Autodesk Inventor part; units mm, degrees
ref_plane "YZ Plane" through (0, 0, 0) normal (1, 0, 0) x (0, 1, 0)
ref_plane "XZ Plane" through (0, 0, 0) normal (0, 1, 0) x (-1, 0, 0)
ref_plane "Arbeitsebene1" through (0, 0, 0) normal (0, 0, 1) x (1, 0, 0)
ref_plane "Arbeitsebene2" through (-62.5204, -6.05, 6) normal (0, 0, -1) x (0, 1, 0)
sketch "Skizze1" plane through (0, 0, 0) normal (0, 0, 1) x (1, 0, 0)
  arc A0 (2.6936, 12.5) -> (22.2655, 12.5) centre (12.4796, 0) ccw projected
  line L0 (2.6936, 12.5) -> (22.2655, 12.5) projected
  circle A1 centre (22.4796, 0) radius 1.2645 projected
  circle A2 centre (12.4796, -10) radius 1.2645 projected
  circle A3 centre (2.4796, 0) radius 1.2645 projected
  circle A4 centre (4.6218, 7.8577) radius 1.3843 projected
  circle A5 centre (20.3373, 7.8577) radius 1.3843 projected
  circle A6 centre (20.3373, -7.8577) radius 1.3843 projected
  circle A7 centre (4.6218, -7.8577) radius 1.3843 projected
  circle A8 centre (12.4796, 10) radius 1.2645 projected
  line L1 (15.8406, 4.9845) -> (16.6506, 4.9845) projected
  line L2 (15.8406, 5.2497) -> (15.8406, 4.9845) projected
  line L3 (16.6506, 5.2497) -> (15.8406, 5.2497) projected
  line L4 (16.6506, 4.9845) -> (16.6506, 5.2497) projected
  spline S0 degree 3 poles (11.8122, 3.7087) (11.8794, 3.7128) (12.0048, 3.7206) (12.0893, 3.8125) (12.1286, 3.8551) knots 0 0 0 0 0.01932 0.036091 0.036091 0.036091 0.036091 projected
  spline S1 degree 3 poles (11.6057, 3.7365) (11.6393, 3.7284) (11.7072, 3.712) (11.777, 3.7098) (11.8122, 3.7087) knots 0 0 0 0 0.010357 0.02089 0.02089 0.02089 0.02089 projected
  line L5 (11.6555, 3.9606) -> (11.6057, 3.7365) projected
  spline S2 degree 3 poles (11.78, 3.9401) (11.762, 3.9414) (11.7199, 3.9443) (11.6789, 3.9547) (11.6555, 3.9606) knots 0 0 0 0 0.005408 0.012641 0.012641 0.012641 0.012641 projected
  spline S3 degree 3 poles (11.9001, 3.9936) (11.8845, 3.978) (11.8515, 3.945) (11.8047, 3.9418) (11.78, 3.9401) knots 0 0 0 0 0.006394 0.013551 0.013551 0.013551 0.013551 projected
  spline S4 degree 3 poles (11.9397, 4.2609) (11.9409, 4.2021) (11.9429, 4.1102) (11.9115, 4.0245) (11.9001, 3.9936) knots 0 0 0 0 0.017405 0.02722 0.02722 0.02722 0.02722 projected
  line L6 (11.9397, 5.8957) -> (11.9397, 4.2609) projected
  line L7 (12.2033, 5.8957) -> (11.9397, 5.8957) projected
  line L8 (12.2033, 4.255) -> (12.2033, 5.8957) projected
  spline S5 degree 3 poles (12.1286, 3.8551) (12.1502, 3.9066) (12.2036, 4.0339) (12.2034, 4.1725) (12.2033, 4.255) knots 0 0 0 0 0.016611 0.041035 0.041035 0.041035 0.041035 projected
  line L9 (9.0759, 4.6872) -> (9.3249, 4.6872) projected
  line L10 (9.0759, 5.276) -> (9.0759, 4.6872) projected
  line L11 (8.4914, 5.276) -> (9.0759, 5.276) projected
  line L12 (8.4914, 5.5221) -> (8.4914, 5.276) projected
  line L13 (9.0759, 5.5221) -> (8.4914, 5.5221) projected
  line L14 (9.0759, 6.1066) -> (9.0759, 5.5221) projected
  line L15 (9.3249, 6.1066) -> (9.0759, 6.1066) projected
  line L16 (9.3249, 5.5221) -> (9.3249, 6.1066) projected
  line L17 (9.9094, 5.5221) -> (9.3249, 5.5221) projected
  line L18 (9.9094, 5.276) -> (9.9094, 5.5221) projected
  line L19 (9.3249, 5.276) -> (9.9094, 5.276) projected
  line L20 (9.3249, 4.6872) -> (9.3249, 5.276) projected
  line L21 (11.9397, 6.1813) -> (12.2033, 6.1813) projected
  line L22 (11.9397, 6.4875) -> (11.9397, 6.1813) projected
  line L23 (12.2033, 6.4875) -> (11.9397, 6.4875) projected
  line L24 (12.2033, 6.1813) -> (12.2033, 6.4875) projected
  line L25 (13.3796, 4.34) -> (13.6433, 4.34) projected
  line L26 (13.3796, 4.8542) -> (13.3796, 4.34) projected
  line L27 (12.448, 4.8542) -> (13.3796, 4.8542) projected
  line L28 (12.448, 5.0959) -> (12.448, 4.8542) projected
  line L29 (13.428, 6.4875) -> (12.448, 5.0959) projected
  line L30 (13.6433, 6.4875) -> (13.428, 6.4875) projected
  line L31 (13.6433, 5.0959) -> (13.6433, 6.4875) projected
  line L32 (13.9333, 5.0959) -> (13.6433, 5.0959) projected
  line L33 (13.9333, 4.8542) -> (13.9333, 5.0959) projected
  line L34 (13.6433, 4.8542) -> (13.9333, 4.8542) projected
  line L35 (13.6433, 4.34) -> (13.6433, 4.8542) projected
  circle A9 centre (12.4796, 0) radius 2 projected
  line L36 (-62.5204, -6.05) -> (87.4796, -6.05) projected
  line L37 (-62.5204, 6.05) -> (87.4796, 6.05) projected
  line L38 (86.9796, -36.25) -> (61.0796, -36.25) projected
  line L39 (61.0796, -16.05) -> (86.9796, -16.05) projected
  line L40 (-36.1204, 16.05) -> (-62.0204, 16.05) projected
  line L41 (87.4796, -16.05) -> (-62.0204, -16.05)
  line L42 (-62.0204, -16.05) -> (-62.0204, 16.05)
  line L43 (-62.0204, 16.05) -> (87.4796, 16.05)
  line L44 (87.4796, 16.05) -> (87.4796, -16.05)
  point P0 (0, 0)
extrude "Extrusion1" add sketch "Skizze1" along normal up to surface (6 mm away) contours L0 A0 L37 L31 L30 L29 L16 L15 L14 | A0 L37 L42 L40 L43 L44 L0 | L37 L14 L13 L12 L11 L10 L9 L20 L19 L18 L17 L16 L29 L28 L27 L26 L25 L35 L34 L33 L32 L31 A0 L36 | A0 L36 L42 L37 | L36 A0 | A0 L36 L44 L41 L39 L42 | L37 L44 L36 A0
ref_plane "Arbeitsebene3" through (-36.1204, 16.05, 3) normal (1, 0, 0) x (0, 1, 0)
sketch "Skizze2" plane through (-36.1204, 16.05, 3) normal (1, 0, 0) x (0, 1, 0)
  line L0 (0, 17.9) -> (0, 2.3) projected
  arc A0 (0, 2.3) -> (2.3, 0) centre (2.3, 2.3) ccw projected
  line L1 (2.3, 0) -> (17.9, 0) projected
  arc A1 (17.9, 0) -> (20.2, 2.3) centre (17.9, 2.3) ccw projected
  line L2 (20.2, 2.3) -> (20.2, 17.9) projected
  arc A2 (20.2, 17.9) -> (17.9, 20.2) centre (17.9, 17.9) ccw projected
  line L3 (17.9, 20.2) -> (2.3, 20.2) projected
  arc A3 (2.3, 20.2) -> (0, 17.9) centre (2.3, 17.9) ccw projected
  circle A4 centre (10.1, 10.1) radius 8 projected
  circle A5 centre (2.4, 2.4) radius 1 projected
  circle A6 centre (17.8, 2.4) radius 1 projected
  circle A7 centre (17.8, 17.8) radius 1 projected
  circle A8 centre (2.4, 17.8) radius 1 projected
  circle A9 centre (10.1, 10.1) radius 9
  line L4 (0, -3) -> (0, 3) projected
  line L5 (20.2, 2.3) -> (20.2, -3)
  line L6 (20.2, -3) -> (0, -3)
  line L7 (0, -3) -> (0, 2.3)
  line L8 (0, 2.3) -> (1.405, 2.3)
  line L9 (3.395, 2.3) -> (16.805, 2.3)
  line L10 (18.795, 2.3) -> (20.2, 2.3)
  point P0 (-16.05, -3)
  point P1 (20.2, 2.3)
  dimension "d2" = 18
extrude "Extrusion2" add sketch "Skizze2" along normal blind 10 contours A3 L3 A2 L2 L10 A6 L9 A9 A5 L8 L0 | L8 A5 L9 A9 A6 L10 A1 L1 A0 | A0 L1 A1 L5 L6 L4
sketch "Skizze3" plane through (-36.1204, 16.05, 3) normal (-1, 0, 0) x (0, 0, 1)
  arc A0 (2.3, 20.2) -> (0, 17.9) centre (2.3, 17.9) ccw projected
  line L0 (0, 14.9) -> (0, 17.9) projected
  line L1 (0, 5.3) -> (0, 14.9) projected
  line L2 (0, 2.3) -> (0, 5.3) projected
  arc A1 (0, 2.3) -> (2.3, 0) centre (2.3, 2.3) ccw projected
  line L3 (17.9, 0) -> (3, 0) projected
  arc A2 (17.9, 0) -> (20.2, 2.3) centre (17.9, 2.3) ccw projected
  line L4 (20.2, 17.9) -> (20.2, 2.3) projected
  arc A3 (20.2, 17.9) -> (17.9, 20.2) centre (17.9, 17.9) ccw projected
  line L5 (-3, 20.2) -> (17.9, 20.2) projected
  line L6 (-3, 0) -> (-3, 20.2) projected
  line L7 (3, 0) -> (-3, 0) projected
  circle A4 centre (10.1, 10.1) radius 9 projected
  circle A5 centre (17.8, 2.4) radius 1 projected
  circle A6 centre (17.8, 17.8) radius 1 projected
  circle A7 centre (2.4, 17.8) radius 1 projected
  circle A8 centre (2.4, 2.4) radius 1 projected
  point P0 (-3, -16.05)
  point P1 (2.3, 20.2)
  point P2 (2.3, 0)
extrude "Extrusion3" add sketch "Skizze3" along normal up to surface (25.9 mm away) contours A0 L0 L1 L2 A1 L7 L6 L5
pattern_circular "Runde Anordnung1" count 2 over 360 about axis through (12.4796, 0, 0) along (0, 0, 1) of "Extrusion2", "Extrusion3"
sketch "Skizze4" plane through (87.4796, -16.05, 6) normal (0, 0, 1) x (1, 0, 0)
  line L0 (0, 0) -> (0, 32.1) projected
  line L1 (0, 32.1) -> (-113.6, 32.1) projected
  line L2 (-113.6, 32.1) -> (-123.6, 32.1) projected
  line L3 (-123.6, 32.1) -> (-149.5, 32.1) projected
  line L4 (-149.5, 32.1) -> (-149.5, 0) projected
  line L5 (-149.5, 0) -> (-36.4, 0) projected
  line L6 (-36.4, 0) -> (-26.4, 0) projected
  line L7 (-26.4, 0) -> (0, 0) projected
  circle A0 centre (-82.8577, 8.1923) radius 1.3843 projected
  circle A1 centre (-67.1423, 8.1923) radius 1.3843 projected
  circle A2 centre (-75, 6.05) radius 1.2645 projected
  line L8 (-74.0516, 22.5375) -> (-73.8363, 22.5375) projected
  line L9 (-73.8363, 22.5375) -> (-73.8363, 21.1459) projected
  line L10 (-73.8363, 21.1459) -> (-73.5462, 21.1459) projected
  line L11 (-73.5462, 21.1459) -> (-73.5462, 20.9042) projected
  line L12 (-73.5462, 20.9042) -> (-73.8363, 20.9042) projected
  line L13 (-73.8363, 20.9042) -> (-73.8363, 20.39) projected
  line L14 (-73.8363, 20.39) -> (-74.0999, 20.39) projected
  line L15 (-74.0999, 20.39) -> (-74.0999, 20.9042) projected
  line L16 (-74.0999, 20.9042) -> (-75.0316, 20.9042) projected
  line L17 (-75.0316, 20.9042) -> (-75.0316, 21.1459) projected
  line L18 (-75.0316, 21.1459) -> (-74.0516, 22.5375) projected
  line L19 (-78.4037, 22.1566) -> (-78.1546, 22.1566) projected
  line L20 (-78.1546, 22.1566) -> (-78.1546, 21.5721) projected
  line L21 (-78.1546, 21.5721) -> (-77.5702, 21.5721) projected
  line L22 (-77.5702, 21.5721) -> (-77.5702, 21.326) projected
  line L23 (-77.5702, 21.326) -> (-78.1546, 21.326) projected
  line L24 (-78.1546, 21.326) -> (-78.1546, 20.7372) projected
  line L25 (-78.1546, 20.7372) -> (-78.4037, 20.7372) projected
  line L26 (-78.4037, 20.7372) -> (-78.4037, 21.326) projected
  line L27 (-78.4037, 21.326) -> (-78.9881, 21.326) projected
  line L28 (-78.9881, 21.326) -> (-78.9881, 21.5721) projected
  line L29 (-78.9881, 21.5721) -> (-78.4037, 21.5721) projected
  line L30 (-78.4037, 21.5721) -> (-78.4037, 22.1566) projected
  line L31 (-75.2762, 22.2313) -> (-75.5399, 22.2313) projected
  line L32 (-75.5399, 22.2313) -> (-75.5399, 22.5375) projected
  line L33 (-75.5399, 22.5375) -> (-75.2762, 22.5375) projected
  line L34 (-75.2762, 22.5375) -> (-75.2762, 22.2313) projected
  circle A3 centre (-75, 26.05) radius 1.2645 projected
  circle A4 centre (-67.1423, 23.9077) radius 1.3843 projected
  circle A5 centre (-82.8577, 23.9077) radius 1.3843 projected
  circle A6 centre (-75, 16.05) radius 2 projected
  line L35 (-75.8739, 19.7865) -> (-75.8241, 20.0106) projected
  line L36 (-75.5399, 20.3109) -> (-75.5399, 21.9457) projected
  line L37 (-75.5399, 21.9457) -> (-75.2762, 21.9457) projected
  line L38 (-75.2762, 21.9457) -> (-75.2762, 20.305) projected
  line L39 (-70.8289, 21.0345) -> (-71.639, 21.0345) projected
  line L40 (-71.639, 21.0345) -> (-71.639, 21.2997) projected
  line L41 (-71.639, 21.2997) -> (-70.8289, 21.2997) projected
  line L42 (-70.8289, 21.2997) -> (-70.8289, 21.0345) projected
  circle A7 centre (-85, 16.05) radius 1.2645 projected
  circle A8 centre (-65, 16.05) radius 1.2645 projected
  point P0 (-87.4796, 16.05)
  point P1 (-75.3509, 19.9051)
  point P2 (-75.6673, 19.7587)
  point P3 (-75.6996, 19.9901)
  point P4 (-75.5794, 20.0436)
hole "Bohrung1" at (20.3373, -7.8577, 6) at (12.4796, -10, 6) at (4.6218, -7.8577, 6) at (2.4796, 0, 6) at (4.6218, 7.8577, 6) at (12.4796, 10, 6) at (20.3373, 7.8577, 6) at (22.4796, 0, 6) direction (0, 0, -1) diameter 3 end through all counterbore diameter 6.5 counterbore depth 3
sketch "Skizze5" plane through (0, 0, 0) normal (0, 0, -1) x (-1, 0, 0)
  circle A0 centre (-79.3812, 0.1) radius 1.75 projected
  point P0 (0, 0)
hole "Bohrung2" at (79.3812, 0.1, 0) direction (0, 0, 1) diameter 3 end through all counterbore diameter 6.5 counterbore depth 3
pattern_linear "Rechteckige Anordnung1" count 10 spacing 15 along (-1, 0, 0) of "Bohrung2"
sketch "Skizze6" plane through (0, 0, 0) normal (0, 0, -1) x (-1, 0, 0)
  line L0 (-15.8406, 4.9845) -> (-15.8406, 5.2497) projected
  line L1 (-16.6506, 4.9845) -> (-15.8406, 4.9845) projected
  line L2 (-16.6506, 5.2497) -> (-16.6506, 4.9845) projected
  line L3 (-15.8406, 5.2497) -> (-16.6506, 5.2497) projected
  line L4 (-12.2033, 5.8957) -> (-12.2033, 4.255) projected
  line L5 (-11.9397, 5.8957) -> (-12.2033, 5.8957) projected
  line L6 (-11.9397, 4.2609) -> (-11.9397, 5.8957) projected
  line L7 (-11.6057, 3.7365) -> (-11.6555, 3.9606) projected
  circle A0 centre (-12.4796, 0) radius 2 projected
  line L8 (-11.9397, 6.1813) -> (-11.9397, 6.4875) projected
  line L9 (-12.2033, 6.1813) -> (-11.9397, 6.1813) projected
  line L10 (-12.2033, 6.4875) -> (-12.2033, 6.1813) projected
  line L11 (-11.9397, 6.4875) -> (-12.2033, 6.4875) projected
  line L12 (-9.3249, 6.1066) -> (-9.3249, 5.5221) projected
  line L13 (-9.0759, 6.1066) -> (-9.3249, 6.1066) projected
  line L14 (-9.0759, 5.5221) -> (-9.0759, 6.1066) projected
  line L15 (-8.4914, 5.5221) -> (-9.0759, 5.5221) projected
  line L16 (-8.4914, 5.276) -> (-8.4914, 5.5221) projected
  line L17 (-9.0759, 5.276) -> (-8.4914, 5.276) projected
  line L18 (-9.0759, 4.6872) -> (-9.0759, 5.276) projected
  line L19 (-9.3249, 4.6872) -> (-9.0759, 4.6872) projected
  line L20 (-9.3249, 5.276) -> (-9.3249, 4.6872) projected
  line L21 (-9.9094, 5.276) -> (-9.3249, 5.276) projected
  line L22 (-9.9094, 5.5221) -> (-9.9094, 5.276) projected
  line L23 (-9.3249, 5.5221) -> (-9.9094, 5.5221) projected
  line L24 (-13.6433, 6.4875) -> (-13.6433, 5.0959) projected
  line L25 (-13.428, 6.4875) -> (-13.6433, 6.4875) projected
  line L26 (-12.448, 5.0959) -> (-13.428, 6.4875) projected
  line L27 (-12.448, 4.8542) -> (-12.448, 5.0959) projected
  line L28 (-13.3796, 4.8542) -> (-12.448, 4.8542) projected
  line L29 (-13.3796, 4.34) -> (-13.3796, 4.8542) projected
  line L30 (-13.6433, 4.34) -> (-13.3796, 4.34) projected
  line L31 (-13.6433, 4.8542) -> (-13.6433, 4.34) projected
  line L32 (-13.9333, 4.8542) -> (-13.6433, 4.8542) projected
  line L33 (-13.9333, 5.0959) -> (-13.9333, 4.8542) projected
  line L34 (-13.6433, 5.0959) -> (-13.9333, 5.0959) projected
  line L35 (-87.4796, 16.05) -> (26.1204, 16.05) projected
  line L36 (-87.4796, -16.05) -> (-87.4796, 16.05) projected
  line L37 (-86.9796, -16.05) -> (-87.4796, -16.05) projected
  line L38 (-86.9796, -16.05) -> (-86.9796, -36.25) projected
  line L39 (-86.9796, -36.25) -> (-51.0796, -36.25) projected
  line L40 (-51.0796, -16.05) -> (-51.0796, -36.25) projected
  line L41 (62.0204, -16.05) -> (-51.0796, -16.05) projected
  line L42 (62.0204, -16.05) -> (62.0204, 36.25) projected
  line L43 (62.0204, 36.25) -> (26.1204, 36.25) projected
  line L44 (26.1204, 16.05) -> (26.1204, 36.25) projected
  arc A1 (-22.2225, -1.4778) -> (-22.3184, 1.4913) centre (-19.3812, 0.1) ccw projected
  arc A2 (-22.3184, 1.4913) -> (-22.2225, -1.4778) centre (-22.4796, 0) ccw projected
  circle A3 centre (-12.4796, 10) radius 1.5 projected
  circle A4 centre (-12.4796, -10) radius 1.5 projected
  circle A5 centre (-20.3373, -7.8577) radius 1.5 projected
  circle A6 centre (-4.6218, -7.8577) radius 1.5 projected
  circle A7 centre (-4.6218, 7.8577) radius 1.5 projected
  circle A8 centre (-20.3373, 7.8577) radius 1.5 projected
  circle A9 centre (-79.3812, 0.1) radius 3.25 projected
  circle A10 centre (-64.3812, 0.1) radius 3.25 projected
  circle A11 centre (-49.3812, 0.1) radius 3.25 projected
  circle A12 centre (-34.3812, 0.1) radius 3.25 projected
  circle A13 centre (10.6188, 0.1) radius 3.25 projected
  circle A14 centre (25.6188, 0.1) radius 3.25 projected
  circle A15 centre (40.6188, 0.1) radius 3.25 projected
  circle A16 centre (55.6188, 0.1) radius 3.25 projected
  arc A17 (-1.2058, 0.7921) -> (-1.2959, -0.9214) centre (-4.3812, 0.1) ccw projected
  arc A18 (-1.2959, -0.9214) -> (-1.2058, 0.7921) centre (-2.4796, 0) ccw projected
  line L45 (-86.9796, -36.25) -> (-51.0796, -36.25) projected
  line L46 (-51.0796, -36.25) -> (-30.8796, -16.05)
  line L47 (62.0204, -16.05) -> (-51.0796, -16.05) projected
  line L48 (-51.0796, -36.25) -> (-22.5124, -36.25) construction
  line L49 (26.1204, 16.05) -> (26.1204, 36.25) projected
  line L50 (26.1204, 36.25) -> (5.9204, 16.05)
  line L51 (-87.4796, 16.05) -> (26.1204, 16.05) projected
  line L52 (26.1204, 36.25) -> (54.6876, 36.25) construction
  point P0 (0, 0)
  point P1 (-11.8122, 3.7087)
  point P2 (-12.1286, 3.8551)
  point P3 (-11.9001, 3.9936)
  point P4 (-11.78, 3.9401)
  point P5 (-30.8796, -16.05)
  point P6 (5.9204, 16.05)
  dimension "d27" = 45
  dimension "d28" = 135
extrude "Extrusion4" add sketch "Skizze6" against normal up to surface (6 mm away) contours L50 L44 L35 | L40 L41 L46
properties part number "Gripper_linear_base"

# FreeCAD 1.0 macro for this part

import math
import FreeCAD as App
import Part
import Sketcher

V = App.Vector


def add_polygon(sketch, points):
    """Adds a closed chain of lines whose ends are joined by coincident constraints."""
    first, n = sketch.GeometryCount, len(points)
    for a, b in zip(points, points[1:] + points[:1]):
        sketch.addGeometry(Part.LineSegment(App.Vector(*a, 0), App.Vector(*b, 0)), False)
    for i in range(n):
        sketch.addConstraint(Sketcher.Constraint("Coincident", first + i, 2, first + (i + 1) % n, 1))

doc = App.newDocument("Part")
body = doc.addObject("PartDesign::Body", "Body")

sketch1 = body.newObject("Sketcher::SketchObject", "Sketch")
sketch1.AttachmentSupport = (doc.getObject("XY_Plane"), [""])
sketch1.MapMode = "FlatFace"
add_polygon(sketch1, [(-62.0204, 16.05), (-62.0204, -16.05), (87.4796, -16.05), (87.4796, 16.05)])
add_polygon(sketch1, [(13.6433, 6.4875), (13.6433, 5.0959), (13.9333, 5.0959), (13.9333, 4.8542), (13.6433, 4.8542), (13.6433, 4.34), (13.3796, 4.34), (13.3796, 4.8542), (12.448, 4.8542), (12.448, 5.0959), (13.428, 6.4875)])
add_polygon(sketch1, [(9.3249, 6.1066), (9.3249, 5.5221), (9.9094, 5.5221), (9.9094, 5.276), (9.3249, 5.276), (9.3249, 4.6872), (9.0759, 4.6872), (9.0759, 5.276), (8.4914, 5.276), (8.4914, 5.5221), (9.0759, 5.5221), (9.0759, 6.1066)])
add_polygon(sketch1, [(12.2033, 6.1813), (11.9397, 6.1813), (11.9397, 6.4875), (12.2033, 6.4875)])
sketch1.addGeometry(Part.Circle(V(4.6218, 7.8577, 0), V(0, 0, 1), 1.3843), False)
sketch1.addGeometry(Part.Circle(V(12.4796, 10, 0), V(0, 0, 1), 1.2645), False)
sketch1.addGeometry(Part.Circle(V(20.3373, 7.8577, 0), V(0, 0, 1), 1.3843), False)
add_polygon(sketch1, [(16.6506, 5.2497), (16.6506, 4.9845), (15.8406, 4.9845), (15.8406, 5.2497)])
sketch1.addGeometry(Part.Circle(V(2.4796, 0, 0), V(0, 0, 1), 1.2645), False)
sketch1.addGeometry(Part.Circle(V(12.4796, 0, 0), V(0, 0, 1), 2), False)
sketch1.addGeometry(Part.BSplineCurve([V(11.8122, 3.7087, 0), V(11.8794, 3.7128, 0), V(12.0048, 3.7206, 0), V(12.0893, 3.8125, 0), V(12.1286, 3.8551, 0)], [4, 1, 4], [0, 0.01932, 0.036091], False, 3, [1, 1, 1, 1, 1], False), False)
sketch1.addGeometry(Part.BSplineCurve([V(11.6057, 3.7365, 0), V(11.6393, 3.7284, 0), V(11.7072, 3.712, 0), V(11.777, 3.7098, 0), V(11.8122, 3.7087, 0)], [4, 1, 4], [0, 0.010357, 0.02089], False, 3, [1, 1, 1, 1, 1], False), False)
sketch1.addGeometry(Part.LineSegment(V(11.6057, 3.7365, 0), V(11.6555, 3.9606, 0)), False)
sketch1.addGeometry(Part.BSplineCurve([V(11.78, 3.9401, 0), V(11.762, 3.9414, 0), V(11.7199, 3.9443, 0), V(11.6789, 3.9547, 0), V(11.6555, 3.9606, 0)], [4, 1, 4], [0, 0.005408, 0.012641], False, 3, [1, 1, 1, 1, 1], False), False)
sketch1.addGeometry(Part.BSplineCurve([V(11.9001, 3.9936, 0), V(11.8845, 3.978, 0), V(11.8515, 3.945, 0), V(11.8047, 3.9418, 0), V(11.78, 3.9401, 0)], [4, 1, 4], [0, 0.006394, 0.013551], False, 3, [1, 1, 1, 1, 1], False), False)
sketch1.addGeometry(Part.BSplineCurve([V(11.9397, 4.2609, 0), V(11.9409, 4.2021, 0), V(11.9429, 4.1102, 0), V(11.9115, 4.0245, 0), V(11.9001, 3.9936, 0)], [4, 1, 4], [0, 0.017405, 0.02722], False, 3, [1, 1, 1, 1, 1], False), False)
sketch1.addGeometry(Part.LineSegment(V(11.9397, 4.2609, 0), V(11.9397, 5.8957, 0)), False)
sketch1.addGeometry(Part.LineSegment(V(11.9397, 5.8957, 0), V(12.2033, 5.8957, 0)), False)
sketch1.addGeometry(Part.LineSegment(V(12.2033, 5.8957, 0), V(12.2033, 4.255, 0)), False)
sketch1.addGeometry(Part.BSplineCurve([V(12.1286, 3.8551, 0), V(12.1502, 3.9066, 0), V(12.2036, 4.0339, 0), V(12.2034, 4.1725, 0), V(12.2033, 4.255, 0)], [4, 1, 4], [0, 0.016611, 0.041035], False, 3, [1, 1, 1, 1, 1], False), False)
sketch1.addGeometry(Part.Circle(V(22.4796, 0, 0), V(0, 0, 1), 1.2645), False)
sketch1.addGeometry(Part.Circle(V(20.3373, -7.8577, 0), V(0, 0, 1), 1.3843), False)
sketch1.addGeometry(Part.Circle(V(12.4796, -10, 0), V(0, 0, 1), 1.2645), False)
sketch1.addGeometry(Part.Circle(V(4.6218, -7.8577, 0), V(0, 0, 1), 1.3843), False)
sketch1.addConstraint(Sketcher.Constraint("Block", 40))
sketch1.addConstraint(Sketcher.Constraint("Block", 41))
sketch1.addConstraint(Sketcher.Constraint("Block", 43))
sketch1.addConstraint(Sketcher.Constraint("Block", 44))
sketch1.addConstraint(Sketcher.Constraint("Block", 45))
sketch1.addConstraint(Sketcher.Constraint("Block", 49))
sketch1.addConstraint(Sketcher.Constraint("Coincident", 41, 1, 42, 1))
sketch1.addConstraint(Sketcher.Constraint("Coincident", 42, 2, 43, 2))
sketch1.addConstraint(Sketcher.Constraint("Coincident", 45, 1, 46, 1))
sketch1.addConstraint(Sketcher.Constraint("Coincident", 46, 2, 47, 1))
sketch1.addConstraint(Sketcher.Constraint("Coincident", 47, 2, 48, 1))
sketch1.addConstraint(Sketcher.Constraint("Coincident", 48, 2, 49, 2))
sketch1.addConstraint(Sketcher.Constraint("Vertical", 0))
sketch1.addConstraint(Sketcher.Constraint("Horizontal", 1))
sketch1.addConstraint(Sketcher.Constraint("Vertical", 2))
sketch1.addConstraint(Sketcher.Constraint("Horizontal", 3))
sketch1.addConstraint(Sketcher.Constraint("Vertical", 4))
sketch1.addConstraint(Sketcher.Constraint("Horizontal", 5))
sketch1.addConstraint(Sketcher.Constraint("Vertical", 6))
sketch1.addConstraint(Sketcher.Constraint("Horizontal", 7))
sketch1.addConstraint(Sketcher.Constraint("Vertical", 8))
sketch1.addConstraint(Sketcher.Constraint("Horizontal", 9))
sketch1.addConstraint(Sketcher.Constraint("Vertical", 10))
sketch1.addConstraint(Sketcher.Constraint("Horizontal", 11))
sketch1.addConstraint(Sketcher.Constraint("Vertical", 12))
sketch1.addConstraint(Sketcher.Constraint("Horizontal", 14))
sketch1.addConstraint(Sketcher.Constraint("Vertical", 15))
sketch1.addConstraint(Sketcher.Constraint("Horizontal", 16))
sketch1.addConstraint(Sketcher.Constraint("Vertical", 17))
sketch1.addConstraint(Sketcher.Constraint("Horizontal", 18))
sketch1.addConstraint(Sketcher.Constraint("Vertical", 19))
sketch1.addConstraint(Sketcher.Constraint("Horizontal", 20))
sketch1.addConstraint(Sketcher.Constraint("Vertical", 21))
sketch1.addConstraint(Sketcher.Constraint("Horizontal", 22))
sketch1.addConstraint(Sketcher.Constraint("Vertical", 23))
sketch1.addConstraint(Sketcher.Constraint("Horizontal", 24))
sketch1.addConstraint(Sketcher.Constraint("Vertical", 25))
sketch1.addConstraint(Sketcher.Constraint("Horizontal", 26))
sketch1.addConstraint(Sketcher.Constraint("Horizontal", 27))
sketch1.addConstraint(Sketcher.Constraint("Vertical", 28))
sketch1.addConstraint(Sketcher.Constraint("Horizontal", 29))
sketch1.addConstraint(Sketcher.Constraint("Vertical", 30))
sketch1.addConstraint(Sketcher.Constraint("Vertical", 34))
sketch1.addConstraint(Sketcher.Constraint("Horizontal", 35))
sketch1.addConstraint(Sketcher.Constraint("Vertical", 36))
sketch1.addConstraint(Sketcher.Constraint("Horizontal", 37))
sketch1.addConstraint(Sketcher.Constraint("Vertical", 46))
sketch1.addConstraint(Sketcher.Constraint("Horizontal", 47))
sketch1.addConstraint(Sketcher.Constraint("Vertical", 48))
sketch1.addConstraint(Sketcher.Constraint("Equal", 31, 33))
sketch1.addConstraint(Sketcher.Constraint("Equal", 32, 38))
sketch1.addConstraint(Sketcher.Constraint("Equal", 38, 50))
sketch1.addConstraint(Sketcher.Constraint("Equal", 33, 51))
sketch1.addConstraint(Sketcher.Constraint("Equal", 50, 52))
sketch1.addConstraint(Sketcher.Constraint("Equal", 51, 53))
sketch1.addConstraint(Sketcher.Constraint("Symmetric", 33, 3, 51, 3, -1))
sketch1.addConstraint(Sketcher.Constraint("Symmetric", 32, 3, 52, 3, -1))
sketch1.addConstraint(Sketcher.Constraint("Symmetric", 31, 3, 53, 3, -1))
sketch1.addConstraint(Sketcher.Constraint("PointOnObject", 38, 3, -1))
sketch1.addConstraint(Sketcher.Constraint("PointOnObject", 39, 3, -1))
sketch1.addConstraint(Sketcher.Constraint("PointOnObject", 50, 3, -1))
sketch1.addConstraint(Sketcher.Constraint("Horizontal", 31, 3, 33, 3))
sketch1.addConstraint(Sketcher.Constraint("Horizontal", 7, 2, 10, 2))
sketch1.addConstraint(Sketcher.Constraint("Horizontal", 5, 2, 12, 2))
sketch1.addConstraint(Sketcher.Constraint("Horizontal", 18, 2, 21, 2))
sketch1.addConstraint(Sketcher.Constraint("Horizontal", 16, 2, 23, 2))
sketch1.addConstraint(Sketcher.Constraint("Horizontal", 14, 2, 28, 2))
sketch1.addConstraint(Sketcher.Constraint("Vertical", 32, 3, 39, 3))
sketch1.addConstraint(Sketcher.Constraint("Vertical", 4, 2, 7, 2))
sketch1.addConstraint(Sketcher.Constraint("Vertical", 15, 2, 18, 2))
sketch1.addConstraint(Sketcher.Constraint("Vertical", 21, 2, 24, 2))
sketch1.addConstraint(Sketcher.Constraint("Vertical", 28, 2, 46, 2))
sketch1.addConstraint(Sketcher.Constraint("Vertical", 30, 2, 47, 2))
sketch1.addConstraint(Sketcher.Constraint("Equal", 18, 22))
sketch1.addConstraint(Sketcher.Constraint("Equal", 9, 27))
sketch1.addConstraint(Sketcher.Constraint("Equal", 24, 15))
sketch1.addConstraint(Sketcher.Constraint("Diameter", 39, 4.0))
sketch1.addConstraint(Sketcher.Constraint("Diameter", 32, 2.529))
sketch1.addConstraint(Sketcher.Constraint("DistanceX", 1, 1, 1, 2, 149.5))
sketch1.addConstraint(Sketcher.Constraint("DistanceY", 0, 2, 0, 1, 32.1))
sketch1.addConstraint(Sketcher.Constraint("DistanceY", -1, 1, 32, 3, 10.0))
sketch1.addConstraint(Sketcher.Constraint("DistanceX", 38, 3, 32, 3, 10.0))
sketch1.addConstraint(Sketcher.Constraint("DistanceX", 39, 3, 50, 3, 10.0))
sketch1.addConstraint(Sketcher.Constraint("DistanceX", 50, 3, 1, 2, 65.0))
sketch1.addConstraint(Sketcher.Constraint("Diameter", 31, 2.7686))
sketch1.addConstraint(Sketcher.Constraint("DistanceX", 5, 1, 5, 2, 0.29))
sketch1.addConstraint(Sketcher.Constraint("DistanceX", 35, 2, 35, 1, 0.81))
sketch1.addConstraint(Sketcher.Constraint("DistanceX", 20, 2, 20, 1, 0.249))
sketch1.addConstraint(Sketcher.Constraint("DistanceY", 17, 2, 17, 1, 0.246))
sketch1.addConstraint(Sketcher.Constraint("DistanceY", 0, 2, -1, 1, 16.05))
sketch1.addConstraint(Sketcher.Constraint("DistanceY", -1, 1, 8, 2, 4.34))
sketch1.addConstraint(Sketcher.Constraint("DistanceX", 12, 2, 13, 2, 0.98))
sketch1.addConstraint(Sketcher.Constraint("DistanceY", 12, 2, 17, 2, 0.18))
sketch1.addConstraint(Sketcher.Constraint("DistanceX", 27, 2, 10, 2, 1.44))
sketch1.addConstraint(Sketcher.Constraint("Distance", 13, 1.702))
sketch1.addConstraint(Sketcher.Constraint("DistanceX", 11, 2, 11, 1, 0.9316))
sketch1.addConstraint(Sketcher.Constraint("DistanceX", 16, 1, 16, 2, 0.5845))
sketch1.addConstraint(Sketcher.Constraint("DistanceY", 6, 2, 6, 1, 0.2417))
sketch1.addConstraint(Sketcher.Constraint("DistanceY", 8, 2, 8, 1, 0.5142))
sketch1.addConstraint(Sketcher.Constraint("DistanceY", 19, 2, 19, 1, 0.5888))
sketch1.addConstraint(Sketcher.Constraint("DistanceY", 28, 1, 28, 2, 0.3062))
sketch1.addConstraint(Sketcher.Constraint("DistanceY", 34, 2, 34, 1, 0.2652))
sketch1.addConstraint(Sketcher.Constraint("DistanceY", 46, 1, 46, 2, 1.6348))
sketch1.addConstraint(Sketcher.Constraint("DistanceX", -1, 1, 15, 2, 9.325))
sketch1.addConstraint(Sketcher.Constraint("DistanceX", 4, 2, 33, 3, 6.694))
sketch1.addConstraint(Sketcher.Constraint("DistanceX", -1, 1, 31, 3, 4.6218))
sketch1.addConstraint(Sketcher.Constraint("DistanceY", -1, 1, 31, 3, 7.8577))
sketch1.addConstraint(Sketcher.Constraint("DistanceX", -1, 1, 32, 3, 12.4796))
sketch1.addConstraint(Sketcher.Constraint("DistanceX", -1, 1, 34, 2, 16.6506))
sketch1.addConstraint(Sketcher.Constraint("DistanceY", -1, 1, 34, 2, 4.9845))
pad1 = body.newObject("PartDesign::Pad", "Pad")
pad1.Profile = sketch1
pad1.Length = 6

sketch2 = body.newObject("Sketcher::SketchObject", "Sketch001")
sketch2.AttachmentSupport = (doc.getObject("YZ_Plane"), [""])
sketch2.MapMode = "FlatFace"
sketch2.AttachmentOffset = App.Placement(V(0, 0, -36.1204), App.Rotation())
sketch2.addGeometry(Part.ArcOfCircle(Part.Circle(V(18.4, 20.9, 0), V(0, 0, 1), 2.3), math.radians(90), math.radians(180)), False)
sketch2.addGeometry(Part.LineSegment(V(16.1, 20.9, 0), V(16.1, 0, 0)), False)
sketch2.addGeometry(Part.LineSegment(V(16.1, 0, 0), V(36.2, 0, 0)), False)
sketch2.addGeometry(Part.LineSegment(V(36.2, 0, 0), V(36.2, 20.9, 0)), False)
sketch2.addGeometry(Part.ArcOfCircle(Part.Circle(V(34, 20.9, 0), V(0, 0, 1), 2.3), math.radians(0), math.radians(90)), False)
sketch2.addGeometry(Part.LineSegment(V(34, 23.2, 0), V(18.4, 23.2, 0)), False)
sketch2.addGeometry(Part.Circle(V(33.9, 5.4, 0), V(0, 0, 1), 1), False)
sketch2.addGeometry(Part.Circle(V(26.1, 13.1, 0), V(0, 0, 1), 9), False)
sketch2.addGeometry(Part.Circle(V(18.4, 5.4, 0), V(0, 0, 1), 1), False)
sketch2.addGeometry(Part.Circle(V(18.4, 20.8, 0), V(0, 0, 1), 1), False)
sketch2.addGeometry(Part.Circle(V(33.9, 20.8, 0), V(0, 0, 1), 1), False)
sketch2.addConstraint(Sketcher.Constraint("Tangent", 0, 2, 1, 1))
sketch2.addConstraint(Sketcher.Constraint("Coincident", 1, 2, 2, 1))
sketch2.addConstraint(Sketcher.Constraint("Coincident", 2, 2, 3, 1))
sketch2.addConstraint(Sketcher.Constraint("Tangent", 3, 2, 4, 1))
sketch2.addConstraint(Sketcher.Constraint("Tangent", 4, 2, 5, 1))
sketch2.addConstraint(Sketcher.Constraint("Tangent", 5, 2, 0, 1))
sketch2.addConstraint(Sketcher.Constraint("Vertical", 1))
sketch2.addConstraint(Sketcher.Constraint("Horizontal", 2))
sketch2.addConstraint(Sketcher.Constraint("Vertical", 3))
sketch2.addConstraint(Sketcher.Constraint("Horizontal", 5))
sketch2.addConstraint(Sketcher.Constraint("Equal", 0, 4))
sketch2.addConstraint(Sketcher.Constraint("Equal", 6, 8))
sketch2.addConstraint(Sketcher.Constraint("Equal", 8, 9))
sketch2.addConstraint(Sketcher.Constraint("Equal", 9, 10))
sketch2.addConstraint(Sketcher.Constraint("PointOnObject", 1, 2, -1))
sketch2.addConstraint(Sketcher.Constraint("Horizontal", 6, 3, 8, 3))
sketch2.addConstraint(Sketcher.Constraint("Horizontal", 9, 3, 10, 3))
sketch2.addConstraint(Sketcher.Constraint("Vertical", 8, 3, 9, 3))
sketch2.addConstraint(Sketcher.Constraint("Vertical", 6, 3, 10, 3))
sketch2.addConstraint(Sketcher.Constraint("Diameter", 7, 18.0))
sketch2.addConstraint(Sketcher.Constraint("Diameter", 6, 2.0))
sketch2.addConstraint(Sketcher.Constraint("Radius", 0, 2.3))
sketch2.addConstraint(Sketcher.Constraint("DistanceX", 2, 1, 2, 2, 20.2))
sketch2.addConstraint(Sketcher.Constraint("DistanceY", 1, 2, 1, 1, 20.9))
sketch2.addConstraint(Sketcher.Constraint("DistanceY", -1, 1, 6, 3, 5.4))
sketch2.addConstraint(Sketcher.Constraint("DistanceY", -1, 1, 7, 3, 13.1))
sketch2.addConstraint(Sketcher.Constraint("DistanceY", -1, 1, 9, 3, 20.8))
sketch2.addConstraint(Sketcher.Constraint("DistanceX", 6, 3, 4, 3, 0.1))
sketch2.addConstraint(Sketcher.Constraint("DistanceX", 7, 3, 6, 3, 7.7))
sketch2.addConstraint(Sketcher.Constraint("DistanceX", 8, 3, 7, 3, 7.7))
sketch2.addConstraint(Sketcher.Constraint("DistanceX", -1, 1, 0, 3, 18.35))
pad2 = body.newObject("PartDesign::Pad", "Pad001")
pad2.Profile = sketch2
pad2.Length = 10

sketch3 = body.newObject("Sketcher::SketchObject", "Sketch002")
sketch3.AttachmentSupport = (doc.getObject("YZ_Plane"), [""])
sketch3.MapMode = "FlatFace"
sketch3.AttachmentOffset = App.Placement(V(0, 0, -36.1204), App.Rotation())
sketch3.addGeometry(Part.ArcOfCircle(Part.Circle(V(34, 5.3, 0), V(0, 0, 1), 2.3), math.radians(-90), math.radians(0)), False)
sketch3.addGeometry(Part.LineSegment(V(36.2, 5.3, 0), V(36.2, 0, 0)), False)
sketch3.addGeometry(Part.LineSegment(V(36.2, 0, 0), V(16.1, 0, 0)), False)
sketch3.addGeometry(Part.LineSegment(V(16.1, 0, 0), V(16.1, 5.3, 0)), False)
sketch3.addGeometry(Part.ArcOfCircle(Part.Circle(V(18.4, 5.3, 0), V(0, 0, 1), 2.3), math.radians(180), math.radians(270)), False)
sketch3.addGeometry(Part.LineSegment(V(18.4, 3, 0), V(34, 3, 0)), False)
sketch3.addConstraint(Sketcher.Constraint("Tangent", 0, 2, 1, 1))
sketch3.addConstraint(Sketcher.Constraint("Coincident", 1, 2, 2, 1))
sketch3.addConstraint(Sketcher.Constraint("Coincident", 2, 2, 3, 1))
sketch3.addConstraint(Sketcher.Constraint("Tangent", 3, 2, 4, 1))
sketch3.addConstraint(Sketcher.Constraint("Tangent", 4, 2, 5, 1))
sketch3.addConstraint(Sketcher.Constraint("Tangent", 5, 2, 0, 1))
sketch3.addConstraint(Sketcher.Constraint("Vertical", 1))
sketch3.addConstraint(Sketcher.Constraint("Horizontal", 2))
sketch3.addConstraint(Sketcher.Constraint("Vertical", 3))
sketch3.addConstraint(Sketcher.Constraint("Horizontal", 5))
sketch3.addConstraint(Sketcher.Constraint("Equal", 0, 4))
sketch3.addConstraint(Sketcher.Constraint("PointOnObject", 1, 2, -1))
sketch3.addConstraint(Sketcher.Constraint("Radius", 0, 2.3))
sketch3.addConstraint(Sketcher.Constraint("DistanceX", 2, 2, 2, 1, 20.2))
sketch3.addConstraint(Sketcher.Constraint("DistanceY", 1, 2, 1, 1, 5.3))
sketch3.addConstraint(Sketcher.Constraint("DistanceX", -1, 1, 0, 3, 33.95))
pad3 = body.newObject("PartDesign::Pad", "Pad002")
pad3.Profile = sketch3
pad3.Length = 25.9
pad3.Reversed = True
doc.recompute()

datumline = body.newObject("PartDesign::Line", "DatumLine")
datumline.Placement = App.Placement(V(12.4796, 0, 0), App.Rotation(V(0, 0, 1), V(0, 0, 1)))
polarpattern = body.newObject("PartDesign::PolarPattern", "PolarPattern")
polarpattern.Originals = [pad2, pad3]
polarpattern.Axis = (datumline, [""])
polarpattern.Angle = 360
polarpattern.Occurrences = 2
body.Tip = polarpattern

sketch4 = body.newObject("Sketcher::SketchObject", "Sketch003")
sketch4.AttachmentSupport = (doc.getObject("XY_Plane"), [""])
sketch4.MapMode = "FlatFace"
sketch4.AttachmentOffset = App.Placement(V(0, 0, 6), App.Rotation())
sketch4.addGeometry(Part.Circle(V(20.3, -7.9, 0), V(0, 0, 1), 1.5), False)
sketch4.addGeometry(Part.Circle(V(12.5, -10, 0), V(0, 0, 1), 1.5), False)
sketch4.addGeometry(Part.Circle(V(4.6, -7.9, 0), V(0, 0, 1), 1.5), False)
sketch4.addGeometry(Part.Circle(V(2.5, 0, 0), V(0, 0, 1), 1.5), False)
sketch4.addGeometry(Part.Circle(V(4.6, 7.9, 0), V(0, 0, 1), 1.5), False)
sketch4.addGeometry(Part.Circle(V(12.5, 10, 0), V(0, 0, 1), 1.5), False)
sketch4.addGeometry(Part.Circle(V(20.3, 7.9, 0), V(0, 0, 1), 1.5), False)
sketch4.addGeometry(Part.Circle(V(22.5, 0, 0), V(0, 0, 1), 1.5), False)
sketch4.addConstraint(Sketcher.Constraint("Equal", 0, 1))
sketch4.addConstraint(Sketcher.Constraint("Equal", 1, 2))
sketch4.addConstraint(Sketcher.Constraint("Equal", 2, 3))
sketch4.addConstraint(Sketcher.Constraint("Equal", 3, 4))
sketch4.addConstraint(Sketcher.Constraint("Equal", 4, 5))
sketch4.addConstraint(Sketcher.Constraint("Equal", 5, 6))
sketch4.addConstraint(Sketcher.Constraint("Equal", 6, 7))
sketch4.addConstraint(Sketcher.Constraint("Symmetric", 2, 3, 4, 3, -1))
sketch4.addConstraint(Sketcher.Constraint("Symmetric", 1, 3, 5, 3, -1))
sketch4.addConstraint(Sketcher.Constraint("Symmetric", 0, 3, 6, 3, -1))
sketch4.addConstraint(Sketcher.Constraint("PointOnObject", 3, 3, -1))
sketch4.addConstraint(Sketcher.Constraint("PointOnObject", 7, 3, -1))
sketch4.addConstraint(Sketcher.Constraint("Horizontal", 0, 3, 2, 3))
sketch4.addConstraint(Sketcher.Constraint("Diameter", 0, 3.0))
sketch4.addConstraint(Sketcher.Constraint("DistanceY", 1, 3, -1, 1, 10.0))
sketch4.addConstraint(Sketcher.Constraint("DistanceX", 3, 3, 1, 3, 10.0))
sketch4.addConstraint(Sketcher.Constraint("DistanceX", 1, 3, 7, 3, 10.0))
sketch4.addConstraint(Sketcher.Constraint("DistanceX", -1, 1, 0, 3, 20.3373))
sketch4.addConstraint(Sketcher.Constraint("DistanceY", 0, 3, -1, 1, 7.8577))
sketch4.addConstraint(Sketcher.Constraint("DistanceX", -1, 1, 1, 3, 12.4796))
sketch4.addConstraint(Sketcher.Constraint("DistanceX", -1, 1, 2, 3, 4.6218))
doc.recompute()
hole = body.newObject("PartDesign::Hole", "Hole")
hole.Profile = sketch4
hole.ThreadType = "None"
hole.Diameter = 3
hole.DepthType = "ThroughAll"
hole.HoleCutType = "Counterbore"
hole.HoleCutDiameter = 6.5
hole.HoleCutDepth = 3

sketch5 = body.newObject("Sketcher::SketchObject", "Sketch004")
sketch5.AttachmentSupport = (doc.getObject("XY_Plane"), [""])
sketch5.MapMode = "FlatFace"
sketch5.addGeometry(Part.Circle(V(79.4, 0.1, 0), V(0, 0, 1), 1.5), False)
sketch5.addConstraint(Sketcher.Constraint("Diameter", 0, 3.0))
sketch5.addConstraint(Sketcher.Constraint("DistanceY", -1, 1, 0, 3, 0.1))
sketch5.addConstraint(Sketcher.Constraint("DistanceX", -1, 1, 0, 3, 79.3812))
doc.recompute()
hole2 = body.newObject("PartDesign::Hole", "Hole001")
hole2.Profile = sketch5
hole2.ThreadType = "None"
hole2.Diameter = 3
hole2.DepthType = "ThroughAll"
hole2.HoleCutType = "Counterbore"
hole2.HoleCutDiameter = 6.5
hole2.HoleCutDepth = 3
hole2.Reversed = True
doc.recompute()

linearpattern = body.newObject("PartDesign::LinearPattern", "LinearPattern")
linearpattern.Originals = [hole2]
linearpattern.Direction = (doc.getObject("X_Axis"), [""])
linearpattern.Mode = "offset"
linearpattern.Offset = 15
linearpattern.Occurrences = 10
linearpattern.Reversed = True
body.Tip = linearpattern

sketch6 = body.newObject("Sketcher::SketchObject", "Sketch005")
sketch6.AttachmentSupport = (doc.getObject("XY_Plane"), [""])
sketch6.MapMode = "FlatFace"
add_polygon(sketch6, [(-26, 36), (-6, 16), (-26, 16)])
add_polygon(sketch6, [(51, -16), (51, -36), (31, -16)])
sketch6.addConstraint(Sketcher.Constraint("Horizontal", 1))
sketch6.addConstraint(Sketcher.Constraint("Vertical", 2))
sketch6.addConstraint(Sketcher.Constraint("Vertical", 3))
sketch6.addConstraint(Sketcher.Constraint("Horizontal", 5))
sketch6.addConstraint(Sketcher.Constraint("Parallel", 0, 4))
sketch6.addConstraint(Sketcher.Constraint("Equal", 1, 5))
sketch6.addConstraint(Sketcher.Constraint("Equal", 5, 2))
sketch6.addConstraint(Sketcher.Constraint("DistanceX", 1, 2, 1, 1, 20.2))
sketch6.addConstraint(Sketcher.Constraint("DistanceX", 0, 2, 3, 2, 57.0))
sketch6.addConstraint(Sketcher.Constraint("DistanceY", 3, 2, 0, 2, 52.3))
sketch6.addConstraint(Sketcher.Constraint("DistanceY", -1, 1, 0, 2, 16.05))
sketch6.addConstraint(Sketcher.Constraint("DistanceX", 0, 2, -1, 1, 5.9204))
pad4 = body.newObject("PartDesign::Pad", "Pad003")
pad4.Profile = sketch6
pad4.Length = 6

doc.recompute()
